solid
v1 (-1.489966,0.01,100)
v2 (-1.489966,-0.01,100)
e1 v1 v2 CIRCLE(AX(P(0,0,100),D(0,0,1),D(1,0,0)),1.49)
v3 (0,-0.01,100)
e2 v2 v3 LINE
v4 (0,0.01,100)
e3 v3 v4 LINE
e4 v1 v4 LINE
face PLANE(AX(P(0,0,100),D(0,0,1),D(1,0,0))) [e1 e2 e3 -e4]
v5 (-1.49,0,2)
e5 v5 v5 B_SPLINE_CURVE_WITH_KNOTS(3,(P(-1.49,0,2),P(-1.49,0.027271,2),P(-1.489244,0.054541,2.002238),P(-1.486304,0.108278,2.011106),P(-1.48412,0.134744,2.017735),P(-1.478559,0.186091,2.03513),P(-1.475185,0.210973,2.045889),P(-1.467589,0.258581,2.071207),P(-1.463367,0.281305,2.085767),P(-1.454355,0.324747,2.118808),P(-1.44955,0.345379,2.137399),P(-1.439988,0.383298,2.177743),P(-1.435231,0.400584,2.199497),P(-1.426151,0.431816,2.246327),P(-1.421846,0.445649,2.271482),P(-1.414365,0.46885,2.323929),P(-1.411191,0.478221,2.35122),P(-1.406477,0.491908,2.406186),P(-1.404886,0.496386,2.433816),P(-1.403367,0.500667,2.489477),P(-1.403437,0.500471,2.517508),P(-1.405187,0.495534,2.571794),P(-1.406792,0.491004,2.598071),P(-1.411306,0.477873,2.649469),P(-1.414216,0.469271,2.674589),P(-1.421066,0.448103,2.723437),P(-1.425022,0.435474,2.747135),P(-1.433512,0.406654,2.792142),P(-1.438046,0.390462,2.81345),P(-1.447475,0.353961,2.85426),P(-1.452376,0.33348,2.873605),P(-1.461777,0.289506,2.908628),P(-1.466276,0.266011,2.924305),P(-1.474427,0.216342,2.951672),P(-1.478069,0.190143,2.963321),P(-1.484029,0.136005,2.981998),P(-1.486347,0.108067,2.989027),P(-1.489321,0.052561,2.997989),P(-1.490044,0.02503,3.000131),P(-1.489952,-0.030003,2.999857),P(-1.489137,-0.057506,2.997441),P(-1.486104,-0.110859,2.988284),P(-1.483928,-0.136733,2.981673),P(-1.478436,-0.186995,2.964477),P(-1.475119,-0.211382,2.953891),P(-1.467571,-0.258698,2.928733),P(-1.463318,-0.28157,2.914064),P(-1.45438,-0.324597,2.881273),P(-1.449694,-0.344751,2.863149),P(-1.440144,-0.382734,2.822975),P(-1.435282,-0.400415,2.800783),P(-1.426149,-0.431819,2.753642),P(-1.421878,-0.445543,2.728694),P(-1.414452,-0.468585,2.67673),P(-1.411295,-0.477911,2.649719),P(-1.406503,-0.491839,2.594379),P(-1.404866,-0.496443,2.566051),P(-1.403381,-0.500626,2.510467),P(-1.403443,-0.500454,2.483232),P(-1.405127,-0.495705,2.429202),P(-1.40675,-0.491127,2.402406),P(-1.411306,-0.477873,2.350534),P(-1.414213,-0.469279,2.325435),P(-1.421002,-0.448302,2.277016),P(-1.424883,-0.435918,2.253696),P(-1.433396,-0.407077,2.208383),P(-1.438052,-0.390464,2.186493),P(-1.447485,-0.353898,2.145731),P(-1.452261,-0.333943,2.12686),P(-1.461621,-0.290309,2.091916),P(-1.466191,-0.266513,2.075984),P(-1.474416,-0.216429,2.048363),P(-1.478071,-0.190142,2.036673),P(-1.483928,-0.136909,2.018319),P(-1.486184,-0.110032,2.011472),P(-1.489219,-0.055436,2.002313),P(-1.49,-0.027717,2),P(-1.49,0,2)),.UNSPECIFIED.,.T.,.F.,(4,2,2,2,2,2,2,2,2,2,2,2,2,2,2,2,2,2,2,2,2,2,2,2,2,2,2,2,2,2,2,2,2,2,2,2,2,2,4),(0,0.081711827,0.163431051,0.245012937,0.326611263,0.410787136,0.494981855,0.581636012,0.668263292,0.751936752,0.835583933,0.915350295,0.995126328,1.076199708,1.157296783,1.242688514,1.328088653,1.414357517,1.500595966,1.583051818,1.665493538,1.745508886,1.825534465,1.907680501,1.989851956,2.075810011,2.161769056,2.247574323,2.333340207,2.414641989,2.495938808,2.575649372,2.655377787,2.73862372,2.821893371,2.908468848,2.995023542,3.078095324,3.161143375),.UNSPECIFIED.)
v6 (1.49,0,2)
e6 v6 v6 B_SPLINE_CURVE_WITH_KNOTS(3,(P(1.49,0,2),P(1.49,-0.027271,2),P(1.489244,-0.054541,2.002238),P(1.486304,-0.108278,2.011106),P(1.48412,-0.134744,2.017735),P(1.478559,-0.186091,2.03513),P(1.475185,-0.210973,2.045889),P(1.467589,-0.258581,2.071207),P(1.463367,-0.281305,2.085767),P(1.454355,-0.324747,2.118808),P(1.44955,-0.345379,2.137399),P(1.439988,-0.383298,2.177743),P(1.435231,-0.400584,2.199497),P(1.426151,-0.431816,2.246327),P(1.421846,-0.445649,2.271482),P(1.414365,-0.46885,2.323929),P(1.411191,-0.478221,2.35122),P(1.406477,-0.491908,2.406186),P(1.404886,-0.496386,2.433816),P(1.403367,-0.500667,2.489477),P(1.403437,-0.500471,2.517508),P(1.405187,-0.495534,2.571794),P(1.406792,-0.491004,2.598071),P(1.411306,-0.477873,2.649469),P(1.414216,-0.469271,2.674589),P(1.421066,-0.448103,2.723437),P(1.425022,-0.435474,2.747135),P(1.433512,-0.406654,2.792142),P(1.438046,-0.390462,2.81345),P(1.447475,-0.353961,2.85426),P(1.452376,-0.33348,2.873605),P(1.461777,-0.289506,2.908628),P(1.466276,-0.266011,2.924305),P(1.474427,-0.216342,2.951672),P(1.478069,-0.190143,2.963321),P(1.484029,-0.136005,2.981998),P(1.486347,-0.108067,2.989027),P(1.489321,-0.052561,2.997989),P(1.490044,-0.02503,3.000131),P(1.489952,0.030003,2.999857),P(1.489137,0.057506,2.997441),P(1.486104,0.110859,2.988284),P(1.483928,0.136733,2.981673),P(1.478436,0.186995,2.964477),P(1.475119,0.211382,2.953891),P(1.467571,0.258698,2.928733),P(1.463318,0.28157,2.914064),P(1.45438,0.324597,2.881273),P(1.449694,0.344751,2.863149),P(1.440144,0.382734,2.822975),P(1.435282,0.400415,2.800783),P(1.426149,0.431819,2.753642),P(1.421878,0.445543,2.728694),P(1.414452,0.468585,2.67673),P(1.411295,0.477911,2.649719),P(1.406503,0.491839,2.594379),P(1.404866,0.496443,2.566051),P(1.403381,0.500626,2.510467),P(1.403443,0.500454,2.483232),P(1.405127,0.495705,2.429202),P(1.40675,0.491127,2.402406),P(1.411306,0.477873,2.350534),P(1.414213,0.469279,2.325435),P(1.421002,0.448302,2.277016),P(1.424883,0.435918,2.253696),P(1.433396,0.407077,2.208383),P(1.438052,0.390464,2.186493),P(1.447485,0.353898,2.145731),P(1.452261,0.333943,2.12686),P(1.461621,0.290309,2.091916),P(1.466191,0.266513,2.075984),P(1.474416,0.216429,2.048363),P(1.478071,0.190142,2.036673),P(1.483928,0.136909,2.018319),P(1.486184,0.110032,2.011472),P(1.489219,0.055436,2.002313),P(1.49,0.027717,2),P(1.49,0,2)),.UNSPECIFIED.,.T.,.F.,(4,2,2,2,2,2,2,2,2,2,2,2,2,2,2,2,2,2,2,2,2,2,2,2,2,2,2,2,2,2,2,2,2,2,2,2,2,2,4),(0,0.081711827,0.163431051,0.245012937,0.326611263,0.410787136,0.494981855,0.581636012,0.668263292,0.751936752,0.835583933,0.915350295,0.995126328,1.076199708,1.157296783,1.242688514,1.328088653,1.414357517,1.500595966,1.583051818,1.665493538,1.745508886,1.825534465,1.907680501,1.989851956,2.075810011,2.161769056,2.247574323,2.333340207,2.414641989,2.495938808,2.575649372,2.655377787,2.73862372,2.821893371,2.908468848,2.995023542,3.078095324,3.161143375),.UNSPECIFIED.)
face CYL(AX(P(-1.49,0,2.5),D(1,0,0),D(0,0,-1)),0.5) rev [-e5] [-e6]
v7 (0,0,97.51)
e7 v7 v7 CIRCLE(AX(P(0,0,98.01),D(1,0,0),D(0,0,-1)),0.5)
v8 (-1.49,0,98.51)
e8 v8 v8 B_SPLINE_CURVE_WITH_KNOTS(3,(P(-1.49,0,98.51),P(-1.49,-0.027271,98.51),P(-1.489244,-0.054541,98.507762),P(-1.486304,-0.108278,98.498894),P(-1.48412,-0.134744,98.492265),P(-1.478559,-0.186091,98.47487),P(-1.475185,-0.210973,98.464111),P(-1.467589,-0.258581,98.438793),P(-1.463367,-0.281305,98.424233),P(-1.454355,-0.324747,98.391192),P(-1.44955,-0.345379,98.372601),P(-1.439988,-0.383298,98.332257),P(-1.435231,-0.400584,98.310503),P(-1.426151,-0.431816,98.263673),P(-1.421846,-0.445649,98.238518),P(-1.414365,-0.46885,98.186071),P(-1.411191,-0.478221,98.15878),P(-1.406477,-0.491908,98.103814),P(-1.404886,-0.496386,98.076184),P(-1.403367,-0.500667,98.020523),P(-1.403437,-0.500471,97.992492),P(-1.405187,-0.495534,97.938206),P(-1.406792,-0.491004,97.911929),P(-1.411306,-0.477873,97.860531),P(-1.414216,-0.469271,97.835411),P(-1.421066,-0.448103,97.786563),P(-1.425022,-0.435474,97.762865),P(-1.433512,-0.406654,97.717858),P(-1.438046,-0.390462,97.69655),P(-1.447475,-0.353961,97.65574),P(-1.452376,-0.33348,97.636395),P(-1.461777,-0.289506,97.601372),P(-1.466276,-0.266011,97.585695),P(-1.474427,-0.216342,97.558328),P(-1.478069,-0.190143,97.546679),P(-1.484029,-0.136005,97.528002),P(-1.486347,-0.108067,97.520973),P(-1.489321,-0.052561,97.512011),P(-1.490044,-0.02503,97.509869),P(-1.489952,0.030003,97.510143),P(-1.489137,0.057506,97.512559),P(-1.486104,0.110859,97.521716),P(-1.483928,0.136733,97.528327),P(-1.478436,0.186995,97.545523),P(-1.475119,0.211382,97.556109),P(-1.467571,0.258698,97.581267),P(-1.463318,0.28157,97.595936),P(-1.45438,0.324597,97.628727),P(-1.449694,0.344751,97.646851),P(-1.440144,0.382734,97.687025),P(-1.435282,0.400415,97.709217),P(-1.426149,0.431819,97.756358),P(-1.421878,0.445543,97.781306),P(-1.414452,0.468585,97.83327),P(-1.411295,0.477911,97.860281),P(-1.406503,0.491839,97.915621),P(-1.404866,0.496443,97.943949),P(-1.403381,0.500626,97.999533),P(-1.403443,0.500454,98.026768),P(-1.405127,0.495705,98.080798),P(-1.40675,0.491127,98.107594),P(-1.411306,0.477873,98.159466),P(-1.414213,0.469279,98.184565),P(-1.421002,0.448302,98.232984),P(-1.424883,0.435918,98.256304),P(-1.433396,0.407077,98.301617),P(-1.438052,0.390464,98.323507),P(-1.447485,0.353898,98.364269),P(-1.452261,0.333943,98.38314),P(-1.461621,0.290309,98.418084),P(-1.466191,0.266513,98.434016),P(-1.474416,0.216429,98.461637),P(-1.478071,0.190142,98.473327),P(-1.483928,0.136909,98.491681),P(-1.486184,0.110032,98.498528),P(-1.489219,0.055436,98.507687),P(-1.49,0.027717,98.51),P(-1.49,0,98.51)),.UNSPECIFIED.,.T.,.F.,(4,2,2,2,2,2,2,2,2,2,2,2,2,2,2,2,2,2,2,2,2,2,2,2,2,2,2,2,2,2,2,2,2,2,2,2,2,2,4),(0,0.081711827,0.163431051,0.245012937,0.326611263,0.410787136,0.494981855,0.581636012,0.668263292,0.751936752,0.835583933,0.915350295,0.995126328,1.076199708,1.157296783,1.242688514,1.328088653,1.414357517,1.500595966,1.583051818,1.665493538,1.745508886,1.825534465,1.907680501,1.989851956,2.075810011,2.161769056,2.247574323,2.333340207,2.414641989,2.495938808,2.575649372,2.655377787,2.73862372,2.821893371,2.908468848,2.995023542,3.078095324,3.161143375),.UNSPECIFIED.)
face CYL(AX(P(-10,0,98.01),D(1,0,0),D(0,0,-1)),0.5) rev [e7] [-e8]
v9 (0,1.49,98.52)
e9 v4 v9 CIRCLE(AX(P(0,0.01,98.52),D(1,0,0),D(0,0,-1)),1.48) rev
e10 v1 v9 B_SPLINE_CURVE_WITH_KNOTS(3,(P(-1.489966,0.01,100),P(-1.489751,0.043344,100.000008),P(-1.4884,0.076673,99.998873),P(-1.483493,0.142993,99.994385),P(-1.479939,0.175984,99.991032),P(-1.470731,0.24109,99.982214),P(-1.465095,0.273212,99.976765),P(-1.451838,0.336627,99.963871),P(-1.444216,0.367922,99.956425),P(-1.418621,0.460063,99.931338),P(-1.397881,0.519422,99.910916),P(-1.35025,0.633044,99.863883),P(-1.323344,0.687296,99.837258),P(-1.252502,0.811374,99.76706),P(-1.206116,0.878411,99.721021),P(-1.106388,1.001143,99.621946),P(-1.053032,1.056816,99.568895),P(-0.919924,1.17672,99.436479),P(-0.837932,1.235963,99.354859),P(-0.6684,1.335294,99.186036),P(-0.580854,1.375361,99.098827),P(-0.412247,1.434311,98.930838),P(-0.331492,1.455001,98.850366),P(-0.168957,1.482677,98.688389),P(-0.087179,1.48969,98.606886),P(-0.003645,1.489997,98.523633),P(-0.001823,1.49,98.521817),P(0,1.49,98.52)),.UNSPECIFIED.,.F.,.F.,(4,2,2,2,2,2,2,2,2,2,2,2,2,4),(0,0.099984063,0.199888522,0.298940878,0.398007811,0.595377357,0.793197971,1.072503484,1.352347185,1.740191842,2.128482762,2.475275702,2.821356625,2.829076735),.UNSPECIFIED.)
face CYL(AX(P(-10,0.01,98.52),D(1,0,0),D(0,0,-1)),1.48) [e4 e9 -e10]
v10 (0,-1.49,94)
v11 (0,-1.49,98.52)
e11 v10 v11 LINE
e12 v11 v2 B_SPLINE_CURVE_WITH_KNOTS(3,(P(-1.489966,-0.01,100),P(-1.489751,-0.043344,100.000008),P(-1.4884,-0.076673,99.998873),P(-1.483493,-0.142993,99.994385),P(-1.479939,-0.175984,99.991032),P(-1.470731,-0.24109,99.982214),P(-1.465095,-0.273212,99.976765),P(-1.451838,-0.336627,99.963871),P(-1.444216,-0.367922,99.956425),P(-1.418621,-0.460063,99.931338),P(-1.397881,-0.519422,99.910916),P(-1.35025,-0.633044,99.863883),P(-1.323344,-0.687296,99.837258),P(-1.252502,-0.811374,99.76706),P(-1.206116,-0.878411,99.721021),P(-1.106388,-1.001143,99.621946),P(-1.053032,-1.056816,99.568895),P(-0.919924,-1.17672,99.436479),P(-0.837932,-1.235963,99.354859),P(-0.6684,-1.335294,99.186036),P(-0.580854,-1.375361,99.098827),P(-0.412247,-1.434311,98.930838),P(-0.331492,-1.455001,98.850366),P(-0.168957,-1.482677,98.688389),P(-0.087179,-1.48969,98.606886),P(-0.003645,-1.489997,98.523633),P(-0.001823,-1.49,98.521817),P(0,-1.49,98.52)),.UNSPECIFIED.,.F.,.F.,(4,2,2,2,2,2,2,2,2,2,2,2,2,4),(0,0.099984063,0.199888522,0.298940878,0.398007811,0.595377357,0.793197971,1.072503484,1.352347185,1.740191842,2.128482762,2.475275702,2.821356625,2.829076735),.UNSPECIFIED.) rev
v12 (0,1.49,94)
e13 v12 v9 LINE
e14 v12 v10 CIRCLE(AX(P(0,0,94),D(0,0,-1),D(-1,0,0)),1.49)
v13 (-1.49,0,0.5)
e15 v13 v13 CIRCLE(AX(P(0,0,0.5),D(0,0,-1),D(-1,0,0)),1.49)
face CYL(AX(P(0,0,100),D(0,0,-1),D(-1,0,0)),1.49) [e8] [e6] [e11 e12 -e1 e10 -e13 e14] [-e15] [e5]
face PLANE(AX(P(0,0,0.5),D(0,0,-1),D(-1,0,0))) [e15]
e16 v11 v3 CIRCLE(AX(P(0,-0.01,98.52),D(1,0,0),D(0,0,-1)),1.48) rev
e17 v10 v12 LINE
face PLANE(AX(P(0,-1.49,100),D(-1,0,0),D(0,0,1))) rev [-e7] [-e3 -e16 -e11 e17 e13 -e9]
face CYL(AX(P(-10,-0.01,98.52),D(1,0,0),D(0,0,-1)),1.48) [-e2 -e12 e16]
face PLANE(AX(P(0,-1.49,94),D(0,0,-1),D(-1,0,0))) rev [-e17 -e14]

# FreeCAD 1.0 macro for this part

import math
import FreeCAD as App
import Part
import Sketcher

V = App.Vector


def add_polygon(sketch, points):
    """Adds a closed chain of lines whose ends are joined by coincident constraints."""
    first, n = sketch.GeometryCount, len(points)
    for a, b in zip(points, points[1:] + points[:1]):
        sketch.addGeometry(Part.LineSegment(App.Vector(*a, 0), App.Vector(*b, 0)), False)
    for i in range(n):
        sketch.addConstraint(Sketcher.Constraint("Coincident", first + i, 2, first + (i + 1) % n, 1))

doc = App.newDocument("Part")
params = doc.addObject("Spreadsheet::Sheet", "Params")
for row, (alias, value) in enumerate([
    ("sketch1_diameter", "2.98 mm"),
    ("pad1_length", "100 mm"),
    ("sketch2_diameter", "1 mm"),
    ("sketch3_height", "6 mm"),
    ("sketch3_width", "1.49 mm"),
    ("sketch4_diameter", "1 mm"),
    ("sketch4_radius", "1.48 mm"),
    ("pocket3_length", "10 mm"),
    ("sketch5_diameter", "2.98 mm"),
    ("pocket4_length", "0.5 mm"),
], start=1):
    params.set(f"A{row}", alias)
    params.set(f"B{row}", "=" + value)
    params.setAlias(f"B{row}", alias)

body = doc.addObject("PartDesign::Body", "Body")

# Sketch on XY plane
sketch1 = doc.addObject("Sketcher::SketchObject", "Sketch")
body.addObject(sketch1)
sketch1.AttachmentSupport = (doc.XY_Plane, [""])
sketch1.MapMode = "FlatFace"
sketch1.addGeometry(Part.Circle(V(0, 0, 0), V(0, 0, 1), 1.49), False)
sketch1.addConstraint(Sketcher.Constraint("Coincident", 0, 3, -1, 1))
sketch1.addConstraint(Sketcher.Constraint("Diameter", 0, 2.98))
sketch1.setExpression("Constraints[1]", "Params.sketch1_diameter")
pad1 = doc.addObject("PartDesign::Pad", "Pad")
body.addObject(pad1)
pad1.Profile = sketch1
pad1.setExpression("Length", "Params.pad1_length")

# Sketch on YZ plane
sketch2 = doc.addObject("Sketcher::SketchObject", "Sketch001")
body.addObject(sketch2)
sketch2.AttachmentSupport = (doc.YZ_Plane, [""])
sketch2.MapMode = "FlatFace"
sketch2.addGeometry(Part.Circle(V(0, 2.5, 0), V(0, 0, 1), 0.5), False)
sketch2.addConstraint(Sketcher.Constraint("PointOnObject", 0, 3, -2))
sketch2.addConstraint(Sketcher.Constraint("Diameter", 0, 1.0))
sketch2.addConstraint(Sketcher.Constraint("DistanceY", -1, 1, 0, 3, 2.5))
sketch2.setExpression("Constraints[1]", "Params.sketch2_diameter")
pocket1 = doc.addObject("PartDesign::Pocket", "Pocket")
body.addObject(pocket1)
pocket1.Profile = sketch2
pocket1.Type = "ThroughAll"
pocket1.Midplane = True

# Sketch on XZ plane
sketch3 = doc.addObject("Sketcher::SketchObject", "Sketch002")
body.addObject(sketch3)
sketch3.AttachmentSupport = (doc.XZ_Plane, [""])
sketch3.MapMode = "FlatFace"
add_polygon(sketch3, [(0, 94), (0, 100), (1.49, 100), (1.49, 94)])  # lines 0-3
sketch3.addConstraint(Sketcher.Constraint("Vertical", 0))
sketch3.addConstraint(Sketcher.Constraint("Horizontal", 1))
sketch3.addConstraint(Sketcher.Constraint("Vertical", 2))
sketch3.addConstraint(Sketcher.Constraint("Horizontal", 3))
sketch3.addConstraint(Sketcher.Constraint("PointOnObject", 0, 2, -2))
sketch3.addConstraint(Sketcher.Constraint("DistanceY", 0, 1, 0, 2, 6.0))
sketch3.addConstraint(Sketcher.Constraint("DistanceY", -1, 1, 0, 2, 100.0))
sketch3.addConstraint(Sketcher.Constraint("DistanceX", 1, 1, 1, 2, 1.49))
sketch3.setExpression("Constraints[9]", "Params.sketch3_height")
sketch3.setExpression("Constraints[11]", "Params.sketch3_width")
pocket2 = doc.addObject("PartDesign::Pocket", "Pocket001")
body.addObject(pocket2)
pocket2.Profile = sketch3
pocket2.Type = "ThroughAll"
pocket2.Midplane = True

# Sketch on YZ plane
sketch4 = doc.addObject("Sketcher::SketchObject", "Sketch003")
body.addObject(sketch4)
sketch4.AttachmentSupport = (doc.YZ_Plane, [""])
sketch4.MapMode = "FlatFace"
sketch4.addGeometry(Part.LineSegment(V(1.49, 100, 0), V(0.01, 100, 0)), False)
sketch4.addGeometry(Part.ArcOfCircle(Part.Circle(V(0.01, 98.52, 0), V(0, 0, 1), 1.48), math.radians(0), math.radians(90)), False)
sketch4.addGeometry(Part.LineSegment(V(1.49, 98.52, 0), V(1.49, 100, 0)), False)
sketch4.addGeometry(Part.ArcOfCircle(Part.Circle(V(-0.01, 98.52, 0), V(0, 0, 1), 1.48), math.radians(90), math.radians(180)), False)
sketch4.addGeometry(Part.LineSegment(V(-0.01, 100, 0), V(-1.49, 100, 0)), False)
sketch4.addGeometry(Part.LineSegment(V(-1.49, 100, 0), V(-1.49, 98.52, 0)), False)
sketch4.addGeometry(Part.Circle(V(0, 98.01, 0), V(0, 0, 1), 0.5), False)
sketch4.addConstraint(Sketcher.Constraint("Tangent", 0, 2, 1, 2))
sketch4.addConstraint(Sketcher.Constraint("Tangent", 1, 1, 2, 1))
sketch4.addConstraint(Sketcher.Constraint("Coincident", 2, 2, 0, 1))
sketch4.addConstraint(Sketcher.Constraint("Tangent", 3, 1, 4, 1))
sketch4.addConstraint(Sketcher.Constraint("Coincident", 4, 2, 5, 1))
sketch4.addConstraint(Sketcher.Constraint("Tangent", 5, 2, 3, 2))
sketch4.addConstraint(Sketcher.Constraint("Horizontal", 0))
sketch4.addConstraint(Sketcher.Constraint("Vertical", 2))
sketch4.addConstraint(Sketcher.Constraint("Horizontal", 4))
sketch4.addConstraint(Sketcher.Constraint("Vertical", 5))
sketch4.addConstraint(Sketcher.Constraint("Equal", 1, 3))
sketch4.addConstraint(Sketcher.Constraint("Symmetric", 1, 3, 3, 3, -2))
sketch4.addConstraint(Sketcher.Constraint("PointOnObject", 6, 3, -2))
sketch4.addConstraint(Sketcher.Constraint("Diameter", 6, 1.0))
sketch4.addConstraint(Sketcher.Constraint("Radius", 1, 1.48))
sketch4.addConstraint(Sketcher.Constraint("DistanceY", -1, 1, 0, 2, 100.0))
sketch4.addConstraint(Sketcher.Constraint("DistanceX", 3, 3, 1, 1, 1.5))
sketch4.addConstraint(Sketcher.Constraint("DistanceY", -1, 1, 6, 3, 98.01))
sketch4.setExpression("Constraints[13]", "Params.sketch4_diameter")
sketch4.setExpression("Constraints[14]", "Params.sketch4_radius")
pocket3 = doc.addObject("PartDesign::Pocket", "Pocket002")
body.addObject(pocket3)
pocket3.Profile = sketch4
pocket3.setExpression("Length", "Params.pocket3_length")

# Sketch on XY plane
sketch5 = doc.addObject("Sketcher::SketchObject", "Sketch004")
body.addObject(sketch5)
sketch5.AttachmentSupport = (doc.XY_Plane, [""])
sketch5.MapMode = "FlatFace"
sketch5.addGeometry(Part.Circle(V(0, 0, 0), V(0, 0, 1), 1.49), False)
sketch5.addConstraint(Sketcher.Constraint("Coincident", 0, 3, -1, 1))
sketch5.addConstraint(Sketcher.Constraint("Diameter", 0, 2.98))
sketch5.setExpression("Constraints[1]", "Params.sketch5_diameter")
pocket4 = doc.addObject("PartDesign::Pocket", "Pocket003")
body.addObject(pocket4)
pocket4.Profile = sketch5
pocket4.setExpression("Length", "Params.pocket4_length")
pocket4.Reversed = True

doc.recompute()
